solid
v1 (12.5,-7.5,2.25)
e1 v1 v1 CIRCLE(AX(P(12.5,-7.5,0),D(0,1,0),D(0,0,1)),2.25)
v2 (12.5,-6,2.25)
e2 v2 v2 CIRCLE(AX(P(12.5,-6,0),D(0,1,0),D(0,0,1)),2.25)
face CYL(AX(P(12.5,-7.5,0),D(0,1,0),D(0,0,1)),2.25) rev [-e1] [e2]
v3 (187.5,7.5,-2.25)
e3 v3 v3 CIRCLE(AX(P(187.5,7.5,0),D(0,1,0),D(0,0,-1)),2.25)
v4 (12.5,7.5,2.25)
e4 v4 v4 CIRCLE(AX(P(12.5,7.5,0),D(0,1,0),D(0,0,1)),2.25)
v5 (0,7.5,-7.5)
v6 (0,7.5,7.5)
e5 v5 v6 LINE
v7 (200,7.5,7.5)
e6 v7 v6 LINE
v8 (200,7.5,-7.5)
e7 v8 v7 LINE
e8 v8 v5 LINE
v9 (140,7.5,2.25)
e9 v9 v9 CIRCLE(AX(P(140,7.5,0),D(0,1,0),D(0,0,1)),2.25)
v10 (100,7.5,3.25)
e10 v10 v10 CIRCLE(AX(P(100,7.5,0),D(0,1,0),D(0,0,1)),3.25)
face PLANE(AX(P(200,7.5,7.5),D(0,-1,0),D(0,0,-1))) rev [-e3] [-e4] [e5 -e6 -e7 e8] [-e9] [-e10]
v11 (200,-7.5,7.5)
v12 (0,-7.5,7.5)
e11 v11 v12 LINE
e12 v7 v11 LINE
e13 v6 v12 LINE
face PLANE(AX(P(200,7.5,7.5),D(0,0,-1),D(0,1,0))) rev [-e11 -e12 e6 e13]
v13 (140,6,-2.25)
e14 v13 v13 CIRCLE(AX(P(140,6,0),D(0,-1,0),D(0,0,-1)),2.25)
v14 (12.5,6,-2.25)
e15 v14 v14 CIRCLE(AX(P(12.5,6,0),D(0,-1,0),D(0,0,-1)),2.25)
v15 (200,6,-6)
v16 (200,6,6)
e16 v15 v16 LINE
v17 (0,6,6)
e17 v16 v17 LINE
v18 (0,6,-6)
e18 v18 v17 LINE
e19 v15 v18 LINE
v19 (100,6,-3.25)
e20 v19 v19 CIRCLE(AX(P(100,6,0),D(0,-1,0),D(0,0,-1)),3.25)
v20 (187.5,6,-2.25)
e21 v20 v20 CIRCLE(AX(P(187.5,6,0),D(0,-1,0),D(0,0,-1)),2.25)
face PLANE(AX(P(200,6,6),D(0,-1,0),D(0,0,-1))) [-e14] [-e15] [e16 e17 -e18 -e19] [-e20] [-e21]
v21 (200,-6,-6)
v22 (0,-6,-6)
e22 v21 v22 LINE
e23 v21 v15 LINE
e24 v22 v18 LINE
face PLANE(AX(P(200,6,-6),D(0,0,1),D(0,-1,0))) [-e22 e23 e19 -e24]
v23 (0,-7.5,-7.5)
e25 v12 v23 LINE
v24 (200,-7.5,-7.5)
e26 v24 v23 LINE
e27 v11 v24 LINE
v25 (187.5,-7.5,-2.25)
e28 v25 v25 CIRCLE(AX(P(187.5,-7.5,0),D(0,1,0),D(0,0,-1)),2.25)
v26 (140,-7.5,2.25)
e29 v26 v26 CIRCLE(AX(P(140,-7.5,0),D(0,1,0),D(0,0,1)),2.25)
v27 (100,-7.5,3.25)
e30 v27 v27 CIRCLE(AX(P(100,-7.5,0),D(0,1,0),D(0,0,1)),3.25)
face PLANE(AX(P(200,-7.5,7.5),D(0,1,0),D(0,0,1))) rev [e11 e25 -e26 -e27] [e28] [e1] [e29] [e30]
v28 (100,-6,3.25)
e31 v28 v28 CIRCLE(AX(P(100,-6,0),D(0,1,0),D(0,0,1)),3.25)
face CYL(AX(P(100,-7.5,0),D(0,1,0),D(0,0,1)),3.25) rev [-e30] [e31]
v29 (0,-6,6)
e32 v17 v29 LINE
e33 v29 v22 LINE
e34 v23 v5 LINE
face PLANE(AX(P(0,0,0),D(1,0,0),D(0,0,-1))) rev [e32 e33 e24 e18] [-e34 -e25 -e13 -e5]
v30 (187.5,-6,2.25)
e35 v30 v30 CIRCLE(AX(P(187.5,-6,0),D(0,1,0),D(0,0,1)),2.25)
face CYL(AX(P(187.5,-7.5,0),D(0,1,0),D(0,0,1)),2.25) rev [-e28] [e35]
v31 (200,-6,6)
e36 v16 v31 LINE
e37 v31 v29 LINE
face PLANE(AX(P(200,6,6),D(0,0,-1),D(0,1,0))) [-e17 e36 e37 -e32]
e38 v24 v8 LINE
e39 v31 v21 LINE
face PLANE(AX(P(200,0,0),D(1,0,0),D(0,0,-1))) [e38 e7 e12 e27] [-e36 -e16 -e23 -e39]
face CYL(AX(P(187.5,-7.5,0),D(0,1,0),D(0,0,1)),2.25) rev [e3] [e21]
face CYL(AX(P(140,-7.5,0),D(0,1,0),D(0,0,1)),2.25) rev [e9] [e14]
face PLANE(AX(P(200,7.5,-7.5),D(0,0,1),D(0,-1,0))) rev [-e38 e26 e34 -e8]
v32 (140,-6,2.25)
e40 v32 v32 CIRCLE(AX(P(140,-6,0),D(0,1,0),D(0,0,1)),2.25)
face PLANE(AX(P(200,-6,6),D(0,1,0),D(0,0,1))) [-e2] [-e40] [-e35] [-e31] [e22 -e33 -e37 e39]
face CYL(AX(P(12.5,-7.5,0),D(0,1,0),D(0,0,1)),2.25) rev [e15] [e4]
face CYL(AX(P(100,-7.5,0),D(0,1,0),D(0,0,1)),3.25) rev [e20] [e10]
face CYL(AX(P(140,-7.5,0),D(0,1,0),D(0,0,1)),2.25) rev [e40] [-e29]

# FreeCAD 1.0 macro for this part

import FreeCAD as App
import Part
import Sketcher

doc = App.newDocument("Part")
body = doc.addObject("PartDesign::Body", "Body")

sketch1 = body.newObject("Sketcher::SketchObject", "Sketch")
sketch1.AttachmentSupport = (doc.getObject("YZ_Plane"), [""])
sketch1.MapMode = "FlatFace"
sketch1.addGeometry([
    Part.LineSegment(App.Vector(8, 8, 0), App.Vector(-8, 8, 0)),
    Part.LineSegment(App.Vector(-8, 8, 0), App.Vector(-8, -8, 0)),
    Part.LineSegment(App.Vector(-8, -8, 0), App.Vector(8, -8, 0)),
    Part.LineSegment(App.Vector(8, -8, 0), App.Vector(8, 8, 0)),
    Part.LineSegment(App.Vector(-6, -6, 0), App.Vector(-6, 6, 0)),
    Part.LineSegment(App.Vector(-6, 6, 0), App.Vector(6, 6, 0)),
    Part.LineSegment(App.Vector(6, 6, 0), App.Vector(6, -6, 0)),
    Part.LineSegment(App.Vector(6, -6, 0), App.Vector(-6, -6, 0)),
], False)
sketch1.addConstraint([
    Sketcher.Constraint("Coincident", 0, 2, 1, 1),
    Sketcher.Constraint("Coincident", 1, 2, 2, 1),
    Sketcher.Constraint("Coincident", 2, 2, 3, 1),
    Sketcher.Constraint("Coincident", 3, 2, 0, 1),
    Sketcher.Constraint("Coincident", 4, 2, 5, 1),
    Sketcher.Constraint("Coincident", 5, 2, 6, 1),
    Sketcher.Constraint("Coincident", 6, 2, 7, 1),
    Sketcher.Constraint("Coincident", 7, 2, 4, 1),
    Sketcher.Constraint("Horizontal", 0),
    Sketcher.Constraint("Vertical", 1),
    Sketcher.Constraint("Horizontal", 2),
    Sketcher.Constraint("Vertical", 3),
    Sketcher.Constraint("Vertical", 4),
    Sketcher.Constraint("Horizontal", 5),
    Sketcher.Constraint("Vertical", 6),
    Sketcher.Constraint("Horizontal", 7),
    Sketcher.Constraint("Symmetric", 0, 2, 2, 2, -1, 1),
    Sketcher.Constraint("Symmetric", 4, 2, 6, 2, -1, 1),
    Sketcher.Constraint("Equal", 2, 1),
    Sketcher.Constraint("Equal", 7, 4),
    Sketcher.Constraint("DistanceX", 0, 2, 0, 1, 15.0),
    Sketcher.Constraint("DistanceX", 5, 1, 5, 2, 12.0),
])
pad1 = body.newObject("PartDesign::Pad", "Pad")
pad1.Profile = sketch1
pad1.Length = 200

sketch2 = body.newObject("Sketcher::SketchObject", "Sketch001")
sketch2.AttachmentSupport = (doc.getObject("XZ_Plane"), [""])
sketch2.MapMode = "FlatFace"
sketch2.AttachmentOffset = App.Placement(App.Vector(0, 0, -7.5), App.Rotation())
sketch2.addGeometry([
    Part.Circle(App.Vector(100, 0, 0), App.Vector(0, 0, 1), 3.2),
    Part.Circle(App.Vector(140, 0, 0), App.Vector(0, 0, 1), 2.2),
], False)
sketch2.addConstraint([
    Sketcher.Constraint("PointOnObject", 0, 3, -1),
    Sketcher.Constraint("PointOnObject", 1, 3, -1),
    Sketcher.Constraint("Diameter", 0, 6.5),
    Sketcher.Constraint("Diameter", 1, 4.5),
    Sketcher.Constraint("DistanceX", -1, 1, 0, 3, 100.0),
    Sketcher.Constraint("DistanceX", -1, 1, 1, 3, 140.0),
])
pocket1 = body.newObject("PartDesign::Pocket", "Pocket")
pocket1.Profile = sketch2
pocket1.Type = "ThroughAll"
pocket1.Reversed = True

sketch3 = body.newObject("Sketcher::SketchObject", "Sketch002")
sketch3.AttachmentSupport = (doc.getObject("XZ_Plane"), [""])
sketch3.MapMode = "FlatFace"
sketch3.AttachmentOffset = App.Placement(App.Vector(0, 0, -7.5), App.Rotation())
sketch3.addGeometry([
    Part.Circle(App.Vector(12.5, 0, 0), App.Vector(0, 0, 1), 2.2),
    Part.Circle(App.Vector(187.5, 0, 0), App.Vector(0, 0, 1), 2.2),
], False)
sketch3.addConstraint([
    Sketcher.Constraint("Equal", 0, 1),
    Sketcher.Constraint("PointOnObject", 0, 3, -1),
    Sketcher.Constraint("PointOnObject", 1, 3, -1),
    Sketcher.Constraint("Diameter", 0, 4.5),
    Sketcher.Constraint("DistanceX", 0, 3, 1, 3, 175.0),
    Sketcher.Constraint("DistanceX", -1, 1, 0, 3, 12.5),
])
pocket2 = body.newObject("PartDesign::Pocket", "Pocket001")
pocket2.Profile = sketch3
pocket2.Type = "ThroughAll"
pocket2.Reversed = True

doc.recompute()
